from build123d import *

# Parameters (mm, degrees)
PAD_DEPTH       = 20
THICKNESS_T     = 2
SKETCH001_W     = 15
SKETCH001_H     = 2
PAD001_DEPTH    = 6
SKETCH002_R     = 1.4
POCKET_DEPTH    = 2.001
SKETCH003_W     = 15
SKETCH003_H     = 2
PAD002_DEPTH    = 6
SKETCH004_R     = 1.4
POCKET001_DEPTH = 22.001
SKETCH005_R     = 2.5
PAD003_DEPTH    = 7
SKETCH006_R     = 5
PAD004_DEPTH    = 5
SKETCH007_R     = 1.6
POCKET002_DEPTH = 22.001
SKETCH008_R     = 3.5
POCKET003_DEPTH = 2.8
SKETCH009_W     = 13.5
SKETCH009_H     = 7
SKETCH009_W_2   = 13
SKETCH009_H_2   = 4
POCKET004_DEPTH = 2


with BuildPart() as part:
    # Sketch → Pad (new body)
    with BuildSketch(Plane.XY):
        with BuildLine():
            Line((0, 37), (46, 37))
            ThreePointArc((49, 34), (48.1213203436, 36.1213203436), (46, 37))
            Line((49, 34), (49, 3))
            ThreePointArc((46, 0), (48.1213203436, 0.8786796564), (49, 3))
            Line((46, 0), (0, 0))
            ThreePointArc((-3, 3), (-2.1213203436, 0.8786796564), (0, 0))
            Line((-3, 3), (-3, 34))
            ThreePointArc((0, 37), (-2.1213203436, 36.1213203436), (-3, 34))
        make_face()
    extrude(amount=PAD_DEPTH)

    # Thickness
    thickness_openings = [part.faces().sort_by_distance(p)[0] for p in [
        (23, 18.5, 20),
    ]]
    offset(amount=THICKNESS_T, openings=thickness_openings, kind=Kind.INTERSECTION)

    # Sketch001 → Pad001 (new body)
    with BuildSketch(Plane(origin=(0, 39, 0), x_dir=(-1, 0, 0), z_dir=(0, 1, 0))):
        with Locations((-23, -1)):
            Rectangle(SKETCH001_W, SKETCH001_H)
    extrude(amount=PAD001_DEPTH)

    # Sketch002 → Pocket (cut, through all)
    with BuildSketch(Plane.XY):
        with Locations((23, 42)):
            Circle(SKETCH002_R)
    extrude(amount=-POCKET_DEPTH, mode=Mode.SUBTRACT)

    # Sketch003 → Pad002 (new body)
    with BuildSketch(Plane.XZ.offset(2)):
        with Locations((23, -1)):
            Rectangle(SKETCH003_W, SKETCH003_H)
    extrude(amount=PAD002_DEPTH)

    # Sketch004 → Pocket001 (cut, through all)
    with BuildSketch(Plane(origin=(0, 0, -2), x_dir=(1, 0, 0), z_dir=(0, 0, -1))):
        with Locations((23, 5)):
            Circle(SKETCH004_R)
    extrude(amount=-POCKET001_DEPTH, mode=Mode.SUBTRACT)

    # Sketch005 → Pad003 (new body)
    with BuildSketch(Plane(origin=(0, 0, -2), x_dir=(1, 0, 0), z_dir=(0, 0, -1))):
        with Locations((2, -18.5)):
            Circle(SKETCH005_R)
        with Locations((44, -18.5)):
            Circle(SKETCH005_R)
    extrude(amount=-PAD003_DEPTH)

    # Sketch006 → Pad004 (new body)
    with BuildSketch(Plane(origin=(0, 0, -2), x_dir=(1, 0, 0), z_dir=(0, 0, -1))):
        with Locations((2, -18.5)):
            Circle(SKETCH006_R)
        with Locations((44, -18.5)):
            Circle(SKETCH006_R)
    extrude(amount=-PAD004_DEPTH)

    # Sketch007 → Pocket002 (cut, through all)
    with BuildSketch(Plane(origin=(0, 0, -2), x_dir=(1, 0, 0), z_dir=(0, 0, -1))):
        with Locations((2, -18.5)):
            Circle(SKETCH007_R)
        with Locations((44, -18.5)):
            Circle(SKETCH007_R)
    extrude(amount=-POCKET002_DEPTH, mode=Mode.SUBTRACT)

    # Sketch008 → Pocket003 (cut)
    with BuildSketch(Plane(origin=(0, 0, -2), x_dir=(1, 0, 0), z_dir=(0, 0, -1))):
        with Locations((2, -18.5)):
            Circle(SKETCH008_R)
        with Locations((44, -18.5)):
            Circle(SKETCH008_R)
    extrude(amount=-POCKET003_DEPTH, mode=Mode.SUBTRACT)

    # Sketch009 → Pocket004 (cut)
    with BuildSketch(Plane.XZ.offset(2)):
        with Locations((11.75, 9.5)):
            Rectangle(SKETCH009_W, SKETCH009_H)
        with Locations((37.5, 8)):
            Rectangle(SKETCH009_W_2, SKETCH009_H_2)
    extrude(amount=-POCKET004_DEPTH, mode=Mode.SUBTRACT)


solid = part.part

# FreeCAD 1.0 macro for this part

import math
import FreeCAD as App
import Part
import Sketcher


def faces_at(feature, points):
    """Names of the faces that lie closest to the given points."""
    faces = feature.Shape.Faces
    near = lambda p: min(range(len(faces)), key=lambda i: faces[i].distToShape(Part.Vertex(*p))[0])
    return sorted({f"Face{near(p) + 1}" for p in points})


def add_polygon(sketch, points):
    """Adds a closed chain of lines whose ends are joined by coincident constraints."""
    first, n = sketch.GeometryCount, len(points)
    for a, b in zip(points, points[1:] + points[:1]):
        sketch.addGeometry(Part.LineSegment(App.Vector(*a, 0), App.Vector(*b, 0)), False)
    for i in range(n):
        sketch.addConstraint(Sketcher.Constraint("Coincident", first + i, 2, first + (i + 1) % n, 1))

doc = App.newDocument("Part")
body = doc.addObject("PartDesign::Body", "Body")

# Sketch on XY plane
sketch1 = body.newObject("Sketcher::SketchObject", "Sketch")
sketch1.AttachmentSupport = (doc.getObject("XY_Plane"), [""])
sketch1.MapMode = "FlatFace"
sketch1.addGeometry(Part.LineSegment(App.Vector(46, 37, 0), App.Vector(0, 37, 0)), False)
sketch1.addGeometry(Part.ArcOfCircle(Part.Circle(App.Vector(0, 34, 0), App.Vector(0, 0, 1), 3), math.radians(90), math.radians(180)), False)
sketch1.addGeometry(Part.LineSegment(App.Vector(-3, 34, 0), App.Vector(-3, 3, 0)), False)
sketch1.addGeometry(Part.ArcOfCircle(Part.Circle(App.Vector(0, 3, 0), App.Vector(0, 0, 1), 3), math.radians(180), math.radians(270)), False)
sketch1.addGeometry(Part.LineSegment(App.Vector(0, 0, 0), App.Vector(46, 0, 0)), False)
sketch1.addGeometry(Part.ArcOfCircle(Part.Circle(App.Vector(46, 3, 0), App.Vector(0, 0, 1), 3), math.radians(-90), math.radians(0)), False)
sketch1.addGeometry(Part.LineSegment(App.Vector(49, 3, 0), App.Vector(49, 34, 0)), False)
sketch1.addGeometry(Part.ArcOfCircle(Part.Circle(App.Vector(46, 34, 0), App.Vector(0, 0, 1), 3), math.radians(0), math.radians(90)), False)
sketch1.addConstraint(Sketcher.Constraint("Tangent", 0, 2, 1, 1))
sketch1.addConstraint(Sketcher.Constraint("Tangent", 1, 2, 2, 1))
sketch1.addConstraint(Sketcher.Constraint("Tangent", 2, 2, 3, 1))
sketch1.addConstraint(Sketcher.Constraint("Tangent", 3, 2, 4, 1))
sketch1.addConstraint(Sketcher.Constraint("Tangent", 4, 2, 5, 1))
sketch1.addConstraint(Sketcher.Constraint("Tangent", 5, 2, 6, 1))
sketch1.addConstraint(Sketcher.Constraint("Tangent", 6, 2, 7, 1))
sketch1.addConstraint(Sketcher.Constraint("Tangent", 7, 2, 0, 1))
sketch1.addConstraint(Sketcher.Constraint("Horizontal", 0))
sketch1.addConstraint(Sketcher.Constraint("Vertical", 2))
sketch1.addConstraint(Sketcher.Constraint("Horizontal", 4))
sketch1.addConstraint(Sketcher.Constraint("Vertical", 6))
sketch1.addConstraint(Sketcher.Constraint("Coincident", 3, 2, -1, 1))
sketch1.addConstraint(Sketcher.Constraint("Equal", 1, 3))
sketch1.addConstraint(Sketcher.Constraint("Equal", 3, 5))
sketch1.addConstraint(Sketcher.Constraint("Equal", 5, 7))
sketch1.addConstraint(Sketcher.Constraint("Radius", 1, 3.0))
sketch1.addConstraint(Sketcher.Constraint("DistanceX", 0, 2, 0, 1, 46.0))
sketch1.addConstraint(Sketcher.Constraint("DistanceY", 2, 2, 2, 1, 31.0))
pad1 = body.newObject("PartDesign::Pad", "Pad")
pad1.Profile = sketch1
pad1.Length = 20
doc.recompute()

thickness = body.newObject("PartDesign::Thickness", "Thickness")
thickness.Base = (pad1, faces_at(pad1, [(23, 18.5, 20)]))
thickness.Value = 2
thickness.Reversed = False
thickness.Join = "Intersection"

# Sketch on XZ plane
sketch2 = body.newObject("Sketcher::SketchObject", "Sketch001")
sketch2.AttachmentSupport = (doc.getObject("XZ_Plane"), [""])
sketch2.MapMode = "FlatFace"
sketch2.AttachmentOffset = App.Placement(App.Vector(0, 0, -39), App.Rotation())
add_polygon(sketch2, [(30.5, 0), (30.5, -2), (15.5, -2), (15.5, 0)])  # lines 0-3
sketch2.addConstraint(Sketcher.Constraint("Vertical", 0))
sketch2.addConstraint(Sketcher.Constraint("Horizontal", 1))
sketch2.addConstraint(Sketcher.Constraint("Vertical", 2))
sketch2.addConstraint(Sketcher.Constraint("Horizontal", 3))
sketch2.addConstraint(Sketcher.Constraint("PointOnObject", 2, 2, -1))
sketch2.addConstraint(Sketcher.Constraint("DistanceX", 1, 2, 1, 1, 15.0))
sketch2.addConstraint(Sketcher.Constraint("DistanceY", 0, 2, 0, 1, 2.0))
sketch2.addConstraint(Sketcher.Constraint("DistanceX", -1, 1, 0, 2, 30.5))
pad2 = body.newObject("PartDesign::Pad", "Pad001")
pad2.Profile = sketch2
pad2.Length = 6
pad2.Reversed = True

# Sketch on XY plane
sketch3 = body.newObject("Sketcher::SketchObject", "Sketch002")
sketch3.AttachmentSupport = (doc.getObject("XY_Plane"), [""])
sketch3.MapMode = "FlatFace"
sketch3.addGeometry(Part.Circle(App.Vector(23, 42, 0), App.Vector(0, 0, 1), 1.4), False)
sketch3.addConstraint(Sketcher.Constraint("Diameter", 0, 2.8))
sketch3.addConstraint(Sketcher.Constraint("DistanceX", -1, 1, 0, 3, 23.0))
sketch3.addConstraint(Sketcher.Constraint("DistanceY", -1, 1, 0, 3, 42.0))
pocket1 = body.newObject("PartDesign::Pocket", "Pocket")
pocket1.Profile = sketch3
pocket1.Type = "ThroughAll"

# Sketch on XZ plane
sketch4 = body.newObject("Sketcher::SketchObject", "Sketch003")
sketch4.AttachmentSupport = (doc.getObject("XZ_Plane"), [""])
sketch4.MapMode = "FlatFace"
sketch4.AttachmentOffset = App.Placement(App.Vector(0, 0, 2), App.Rotation())
add_polygon(sketch4, [(15.5, 0), (15.5, -2), (30.5, -2), (30.5, 0)])  # lines 0-3
sketch4.addConstraint(Sketcher.Constraint("Vertical", 0))
sketch4.addConstraint(Sketcher.Constraint("Horizontal", 1))
sketch4.addConstraint(Sketcher.Constraint("Vertical", 2))
sketch4.addConstraint(Sketcher.Constraint("Horizontal", 3))
sketch4.addConstraint(Sketcher.Constraint("PointOnObject", 2, 2, -1))
sketch4.addConstraint(Sketcher.Constraint("DistanceX", 1, 1, 1, 2, 15.0))
sketch4.addConstraint(Sketcher.Constraint("DistanceY", 0, 2, 0, 1, 2.0))
sketch4.addConstraint(Sketcher.Constraint("DistanceX", -1, 1, 0, 2, 15.5))
pad3 = body.newObject("PartDesign::Pad", "Pad002")
pad3.Profile = sketch4
pad3.Length = 6

# Sketch on XY plane
sketch5 = body.newObject("Sketcher::SketchObject", "Sketch004")
sketch5.AttachmentSupport = (doc.getObject("XY_Plane"), [""])
sketch5.MapMode = "FlatFace"
sketch5.AttachmentOffset = App.Placement(App.Vector(0, 0, -2), App.Rotation())
sketch5.addGeometry(Part.Circle(App.Vector(23, -5, 0), App.Vector(0, 0, 1), 1.4), False)
sketch5.addConstraint(Sketcher.Constraint("Diameter", 0, 2.8))
sketch5.addConstraint(Sketcher.Constraint("DistanceX", -1, 1, 0, 3, 23.0))
sketch5.addConstraint(Sketcher.Constraint("DistanceY", 0, 3, -1, 1, 5.0))
pocket2 = body.newObject("PartDesign::Pocket", "Pocket001")
pocket2.Profile = sketch5
pocket2.Type = "ThroughAll"
pocket2.Reversed = True

# Sketch on XY plane
sketch6 = body.newObject("Sketcher::SketchObject", "Sketch005")
sketch6.AttachmentSupport = (doc.getObject("XY_Plane"), [""])
sketch6.MapMode = "FlatFace"
sketch6.AttachmentOffset = App.Placement(App.Vector(0, 0, -2), App.Rotation())
sketch6.addGeometry(Part.Circle(App.Vector(2, 18.5, 0), App.Vector(0, 0, 1), 2.5), False)
sketch6.addGeometry(Part.Circle(App.Vector(44, 18.5, 0), App.Vector(0, 0, 1), 2.5), False)
sketch6.addConstraint(Sketcher.Constraint("Equal", 0, 1))
sketch6.addConstraint(Sketcher.Constraint("Horizontal", 0, 3, 1, 3))
sketch6.addConstraint(Sketcher.Constraint("Diameter", 0, 5.0))
sketch6.addConstraint(Sketcher.Constraint("DistanceX", -1, 1, 0, 3, 2.0))
sketch6.addConstraint(Sketcher.Constraint("DistanceX", -1, 1, 1, 3, 44.0))
sketch6.addConstraint(Sketcher.Constraint("DistanceY", -1, 1, 0, 3, 18.5))
pad4 = body.newObject("PartDesign::Pad", "Pad003")
pad4.Profile = sketch6
pad4.Length = 7

# Sketch on XY plane
sketch7 = body.newObject("Sketcher::SketchObject", "Sketch006")
sketch7.AttachmentSupport = (doc.getObject("XY_Plane"), [""])
sketch7.MapMode = "FlatFace"
sketch7.AttachmentOffset = App.Placement(App.Vector(0, 0, -2), App.Rotation())
sketch7.addGeometry(Part.Circle(App.Vector(2, 18, 0), App.Vector(0, 0, 1), 5), False)
sketch7.addGeometry(Part.Circle(App.Vector(44, 18, 0), App.Vector(0, 0, 1), 5), False)
sketch7.addConstraint(Sketcher.Constraint("Equal", 0, 1))
sketch7.addConstraint(Sketcher.Constraint("Horizontal", 0, 3, 1, 3))
sketch7.addConstraint(Sketcher.Constraint("Diameter", 0, 10.0))
sketch7.addConstraint(Sketcher.Constraint("DistanceX", -1, 1, 0, 3, 2.0))
sketch7.addConstraint(Sketcher.Constraint("DistanceX", -1, 1, 1, 3, 44.0))
sketch7.addConstraint(Sketcher.Constraint("DistanceY", -1, 1, 0, 3, 18.5))
pad5 = body.newObject("PartDesign::Pad", "Pad004")
pad5.Profile = sketch7
pad5.Length = 5

# Sketch on XY plane
sketch8 = body.newObject("Sketcher::SketchObject", "Sketch007")
sketch8.AttachmentSupport = (doc.getObject("XY_Plane"), [""])
sketch8.MapMode = "FlatFace"
sketch8.AttachmentOffset = App.Placement(App.Vector(0, 0, -2), App.Rotation())
sketch8.addGeometry(Part.Circle(App.Vector(2, 18.5, 0), App.Vector(0, 0, 1), 1.6), False)
sketch8.addGeometry(Part.Circle(App.Vector(44, 18.5, 0), App.Vector(0, 0, 1), 1.6), False)
sketch8.addConstraint(Sketcher.Constraint("Equal", 0, 1))
sketch8.addConstraint(Sketcher.Constraint("Horizontal", 0, 3, 1, 3))
sketch8.addConstraint(Sketcher.Constraint("Diameter", 0, 3.2))
sketch8.addConstraint(Sketcher.Constraint("DistanceX", -1, 1, 0, 3, 2.0))
sketch8.addConstraint(Sketcher.Constraint("DistanceX", -1, 1, 1, 3, 44.0))
sketch8.addConstraint(Sketcher.Constraint("DistanceY", -1, 1, 0, 3, 18.5))
pocket3 = body.newObject("PartDesign::Pocket", "Pocket002")
pocket3.Profile = sketch8
pocket3.Type = "ThroughAll"
pocket3.Reversed = True

# Sketch on XY plane
sketch9 = body.newObject("Sketcher::SketchObject", "Sketch008")
sketch9.AttachmentSupport = (doc.getObject("XY_Plane"), [""])
sketch9.MapMode = "FlatFace"
sketch9.AttachmentOffset = App.Placement(App.Vector(0, 0, -2), App.Rotation())
sketch9.addGeometry(Part.Circle(App.Vector(2, 18.5, 0), App.Vector(0, 0, 1), 3.5), False)
sketch9.addGeometry(Part.Circle(App.Vector(44, 18.5, 0), App.Vector(0, 0, 1), 3.5), False)
sketch9.addConstraint(Sketcher.Constraint("Equal", 0, 1))
sketch9.addConstraint(Sketcher.Constraint("Horizontal", 0, 3, 1, 3))
sketch9.addConstraint(Sketcher.Constraint("Diameter", 0, 7.0))
sketch9.addConstraint(Sketcher.Constraint("DistanceX", -1, 1, 0, 3, 2.0))
sketch9.addConstraint(Sketcher.Constraint("DistanceX", -1, 1, 1, 3, 44.0))
sketch9.addConstraint(Sketcher.Constraint("DistanceY", -1, 1, 0, 3, 18.5))
pocket4 = body.newObject("PartDesign::Pocket", "Pocket003")
pocket4.Profile = sketch9
pocket4.Length = 2.8
pocket4.Reversed = True

# Sketch on XZ plane
sketch10 = body.newObject("Sketcher::SketchObject", "Sketch009")
sketch10.AttachmentSupport = (doc.getObject("XZ_Plane"), [""])
sketch10.MapMode = "FlatFace"
sketch10.AttachmentOffset = App.Placement(App.Vector(0, 0, 2), App.Rotation())
add_polygon(sketch10, [(5, 13), (5, 6), (18.5, 6), (18.5, 13)])  # lines 0-3
add_polygon(sketch10, [(31, 10), (31, 6), (44, 6), (44, 10)])  # lines 4-7
sketch10.addConstraint(Sketcher.Constraint("Vertical", 0))
sketch10.addConstraint(Sketcher.Constraint("Horizontal", 1))
sketch10.addConstraint(Sketcher.Constraint("Vertical", 2))
sketch10.addConstraint(Sketcher.Constraint("Horizontal", 3))
sketch10.addConstraint(Sketcher.Constraint("Vertical", 4))
sketch10.addConstraint(Sketcher.Constraint("Horizontal", 5))
sketch10.addConstraint(Sketcher.Constraint("Vertical", 6))
sketch10.addConstraint(Sketcher.Constraint("Horizontal", 7))
sketch10.addConstraint(Sketcher.Constraint("Horizontal", 1, 2, 4, 2))
sketch10.addConstraint(Sketcher.Constraint("DistanceX", 5, 1, 5, 2, 13.0))
sketch10.addConstraint(Sketcher.Constraint("DistanceY", 0, 2, 0, 1, 7.0))
sketch10.addConstraint(Sketcher.Constraint("DistanceY", 4, 2, 4, 1, 4.0))
sketch10.addConstraint(Sketcher.Constraint("DistanceX", 1, 1, 1, 2, 13.5))
sketch10.addConstraint(Sketcher.Constraint("DistanceX", -1, 1, 0, 2, 5.0))
sketch10.addConstraint(Sketcher.Constraint("DistanceY", -1, 1, 0, 2, 6.0))
sketch10.addConstraint(Sketcher.Constraint("DistanceX", -1, 1, 4, 2, 31.0))
pocket5 = body.newObject("PartDesign::Pocket", "Pocket004")
pocket5.Profile = sketch10
pocket5.Length = 2

doc.recompute()
